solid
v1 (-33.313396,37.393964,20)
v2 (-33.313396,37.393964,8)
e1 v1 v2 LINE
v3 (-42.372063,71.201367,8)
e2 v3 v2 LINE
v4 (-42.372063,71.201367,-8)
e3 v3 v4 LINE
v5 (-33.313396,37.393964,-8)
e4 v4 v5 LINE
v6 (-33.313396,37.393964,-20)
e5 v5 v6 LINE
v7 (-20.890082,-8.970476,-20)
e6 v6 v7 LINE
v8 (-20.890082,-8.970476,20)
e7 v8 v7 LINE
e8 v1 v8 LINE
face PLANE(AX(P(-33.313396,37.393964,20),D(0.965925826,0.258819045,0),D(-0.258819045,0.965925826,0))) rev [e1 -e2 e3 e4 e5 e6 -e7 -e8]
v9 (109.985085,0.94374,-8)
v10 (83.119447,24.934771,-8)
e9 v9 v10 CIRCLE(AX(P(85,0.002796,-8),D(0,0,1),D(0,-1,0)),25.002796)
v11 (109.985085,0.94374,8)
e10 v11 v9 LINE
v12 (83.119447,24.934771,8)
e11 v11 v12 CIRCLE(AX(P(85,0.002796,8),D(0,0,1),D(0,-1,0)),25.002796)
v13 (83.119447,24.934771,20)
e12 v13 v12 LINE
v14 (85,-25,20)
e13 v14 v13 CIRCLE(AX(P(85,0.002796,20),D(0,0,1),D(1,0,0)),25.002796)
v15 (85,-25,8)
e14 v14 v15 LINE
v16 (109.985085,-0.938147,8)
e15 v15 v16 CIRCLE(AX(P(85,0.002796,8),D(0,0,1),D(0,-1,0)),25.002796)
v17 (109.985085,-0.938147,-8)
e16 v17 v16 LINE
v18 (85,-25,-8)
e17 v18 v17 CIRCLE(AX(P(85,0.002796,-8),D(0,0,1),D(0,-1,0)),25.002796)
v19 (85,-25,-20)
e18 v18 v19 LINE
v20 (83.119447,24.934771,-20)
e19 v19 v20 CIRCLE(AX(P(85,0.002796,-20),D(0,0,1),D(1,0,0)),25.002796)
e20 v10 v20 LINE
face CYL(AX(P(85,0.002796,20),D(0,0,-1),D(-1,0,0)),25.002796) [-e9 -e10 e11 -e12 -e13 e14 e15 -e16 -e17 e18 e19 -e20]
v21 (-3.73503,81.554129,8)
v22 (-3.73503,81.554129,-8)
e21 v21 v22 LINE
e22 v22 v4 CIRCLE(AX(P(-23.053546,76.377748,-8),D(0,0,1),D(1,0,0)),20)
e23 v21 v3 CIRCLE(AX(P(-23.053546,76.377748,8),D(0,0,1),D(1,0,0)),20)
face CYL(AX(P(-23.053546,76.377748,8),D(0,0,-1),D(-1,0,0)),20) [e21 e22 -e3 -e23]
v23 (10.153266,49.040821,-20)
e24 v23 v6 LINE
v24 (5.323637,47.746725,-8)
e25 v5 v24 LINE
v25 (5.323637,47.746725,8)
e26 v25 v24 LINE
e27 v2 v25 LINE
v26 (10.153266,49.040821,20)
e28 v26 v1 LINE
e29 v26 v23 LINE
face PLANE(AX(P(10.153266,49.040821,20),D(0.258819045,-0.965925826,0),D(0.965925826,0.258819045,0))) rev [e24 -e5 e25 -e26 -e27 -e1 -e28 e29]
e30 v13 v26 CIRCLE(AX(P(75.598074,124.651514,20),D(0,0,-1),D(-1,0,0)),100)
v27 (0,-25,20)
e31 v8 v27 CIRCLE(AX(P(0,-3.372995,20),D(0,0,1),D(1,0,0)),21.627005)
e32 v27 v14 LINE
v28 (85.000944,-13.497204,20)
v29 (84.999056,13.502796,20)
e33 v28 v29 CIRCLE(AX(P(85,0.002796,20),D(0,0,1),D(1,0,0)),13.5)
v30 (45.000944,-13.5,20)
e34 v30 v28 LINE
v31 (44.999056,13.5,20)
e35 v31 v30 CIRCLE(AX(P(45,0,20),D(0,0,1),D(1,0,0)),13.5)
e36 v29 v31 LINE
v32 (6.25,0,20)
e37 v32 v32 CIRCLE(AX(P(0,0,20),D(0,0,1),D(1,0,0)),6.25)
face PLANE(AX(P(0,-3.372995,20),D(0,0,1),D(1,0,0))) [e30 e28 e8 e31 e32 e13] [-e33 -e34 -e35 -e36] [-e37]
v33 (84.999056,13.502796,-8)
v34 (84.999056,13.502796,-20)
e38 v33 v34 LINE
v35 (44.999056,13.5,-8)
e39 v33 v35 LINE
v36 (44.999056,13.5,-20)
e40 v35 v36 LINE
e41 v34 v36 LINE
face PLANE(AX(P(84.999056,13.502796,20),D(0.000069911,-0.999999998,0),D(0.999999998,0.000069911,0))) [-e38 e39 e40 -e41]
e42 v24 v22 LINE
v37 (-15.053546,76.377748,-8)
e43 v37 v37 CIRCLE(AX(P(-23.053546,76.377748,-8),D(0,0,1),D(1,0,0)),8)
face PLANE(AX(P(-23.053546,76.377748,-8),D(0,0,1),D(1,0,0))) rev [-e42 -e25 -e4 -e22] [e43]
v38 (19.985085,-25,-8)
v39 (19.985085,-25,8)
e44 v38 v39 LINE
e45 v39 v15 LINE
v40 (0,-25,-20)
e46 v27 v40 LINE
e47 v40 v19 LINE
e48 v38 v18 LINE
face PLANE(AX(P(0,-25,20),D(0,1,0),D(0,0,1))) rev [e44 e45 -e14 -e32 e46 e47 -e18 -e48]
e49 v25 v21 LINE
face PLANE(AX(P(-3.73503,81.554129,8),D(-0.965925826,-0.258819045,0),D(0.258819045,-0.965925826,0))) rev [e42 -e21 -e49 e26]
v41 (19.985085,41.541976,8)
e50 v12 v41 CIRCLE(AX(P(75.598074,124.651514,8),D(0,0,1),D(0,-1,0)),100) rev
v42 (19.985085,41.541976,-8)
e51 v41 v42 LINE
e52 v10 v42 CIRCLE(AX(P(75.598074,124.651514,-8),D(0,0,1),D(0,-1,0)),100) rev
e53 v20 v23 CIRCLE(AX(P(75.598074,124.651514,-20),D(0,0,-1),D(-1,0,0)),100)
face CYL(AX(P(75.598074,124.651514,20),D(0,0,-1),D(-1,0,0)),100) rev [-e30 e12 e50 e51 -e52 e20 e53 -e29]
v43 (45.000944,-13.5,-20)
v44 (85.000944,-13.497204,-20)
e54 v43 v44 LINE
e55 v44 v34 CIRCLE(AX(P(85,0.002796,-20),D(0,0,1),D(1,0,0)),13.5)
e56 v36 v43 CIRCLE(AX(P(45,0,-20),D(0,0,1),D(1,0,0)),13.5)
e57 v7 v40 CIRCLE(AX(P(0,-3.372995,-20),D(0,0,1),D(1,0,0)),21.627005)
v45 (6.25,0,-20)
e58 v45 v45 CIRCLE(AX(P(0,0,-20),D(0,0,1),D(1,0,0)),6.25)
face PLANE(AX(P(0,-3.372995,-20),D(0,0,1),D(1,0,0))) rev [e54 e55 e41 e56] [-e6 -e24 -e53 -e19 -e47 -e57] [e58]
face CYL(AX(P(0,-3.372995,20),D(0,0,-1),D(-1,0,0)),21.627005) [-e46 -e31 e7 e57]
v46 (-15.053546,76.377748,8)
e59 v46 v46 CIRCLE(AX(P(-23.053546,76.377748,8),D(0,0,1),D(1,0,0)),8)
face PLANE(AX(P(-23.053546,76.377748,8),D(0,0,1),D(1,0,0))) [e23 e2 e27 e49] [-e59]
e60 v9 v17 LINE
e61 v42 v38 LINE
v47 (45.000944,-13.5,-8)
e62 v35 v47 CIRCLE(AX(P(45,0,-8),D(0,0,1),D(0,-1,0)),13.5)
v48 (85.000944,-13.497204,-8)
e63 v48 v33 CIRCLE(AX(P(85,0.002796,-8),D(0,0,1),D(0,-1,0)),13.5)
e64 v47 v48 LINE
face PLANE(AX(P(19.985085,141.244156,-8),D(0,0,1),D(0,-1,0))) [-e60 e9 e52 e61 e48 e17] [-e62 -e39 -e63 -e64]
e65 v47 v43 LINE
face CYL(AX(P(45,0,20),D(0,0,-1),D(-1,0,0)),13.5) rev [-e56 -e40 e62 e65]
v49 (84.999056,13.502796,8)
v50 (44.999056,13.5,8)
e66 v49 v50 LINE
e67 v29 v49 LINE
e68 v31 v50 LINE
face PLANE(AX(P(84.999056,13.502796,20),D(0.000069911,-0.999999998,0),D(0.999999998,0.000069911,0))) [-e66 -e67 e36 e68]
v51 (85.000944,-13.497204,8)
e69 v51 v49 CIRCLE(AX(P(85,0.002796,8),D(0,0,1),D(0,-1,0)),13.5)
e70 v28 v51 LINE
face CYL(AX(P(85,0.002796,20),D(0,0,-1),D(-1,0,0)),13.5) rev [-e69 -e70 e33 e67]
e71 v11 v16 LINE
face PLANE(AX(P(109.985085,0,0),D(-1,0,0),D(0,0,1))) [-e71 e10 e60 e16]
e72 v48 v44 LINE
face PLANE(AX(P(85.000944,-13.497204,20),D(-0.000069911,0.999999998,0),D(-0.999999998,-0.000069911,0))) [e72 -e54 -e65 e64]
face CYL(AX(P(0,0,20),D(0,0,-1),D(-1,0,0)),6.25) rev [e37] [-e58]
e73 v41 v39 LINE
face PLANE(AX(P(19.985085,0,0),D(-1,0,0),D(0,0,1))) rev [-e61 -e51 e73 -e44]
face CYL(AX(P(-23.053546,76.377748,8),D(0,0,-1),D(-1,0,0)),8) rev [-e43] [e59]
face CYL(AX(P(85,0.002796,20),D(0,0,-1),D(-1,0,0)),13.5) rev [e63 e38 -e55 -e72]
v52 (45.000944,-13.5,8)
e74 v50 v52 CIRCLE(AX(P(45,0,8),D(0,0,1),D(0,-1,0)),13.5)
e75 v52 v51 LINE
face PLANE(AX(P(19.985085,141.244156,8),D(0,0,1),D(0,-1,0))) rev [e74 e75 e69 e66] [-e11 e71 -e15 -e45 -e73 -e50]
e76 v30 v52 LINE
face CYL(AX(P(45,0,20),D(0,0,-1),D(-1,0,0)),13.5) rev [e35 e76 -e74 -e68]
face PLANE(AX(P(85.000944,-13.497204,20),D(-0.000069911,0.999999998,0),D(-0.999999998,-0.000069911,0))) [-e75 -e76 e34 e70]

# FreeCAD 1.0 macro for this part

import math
import FreeCAD as App
import Part
import Sketcher
Q = App.Units.Quantity


def add_polygon(sketch, points):
    """Adds a closed chain of lines whose ends are joined by coincident constraints."""
    first, n = sketch.GeometryCount, len(points)
    for a, b in zip(points, points[1:] + points[:1]):
        sketch.addGeometry(Part.LineSegment(App.Vector(*a, 0), App.Vector(*b, 0)), False)
    for i in range(n):
        sketch.addConstraint(Sketcher.Constraint("Coincident", first + i, 2, first + (i + 1) % n, 1))

doc = App.newDocument("Part")
params = doc.addObject("Spreadsheet::Sheet", "Params")
for row, (alias, value) in enumerate([
    ("sketch1_radius", "100 mm"),
    ("sketch1_diameter", "12.5 mm"),
    ("sketch1_radius2", "13.5 mm"),
    ("sketch1_width", "85 mm"),
    ("sketch1_length", "45 mm"),
    ("pad1_length", "40 mm"),
    ("sketch2_diameter", "16 mm"),
    ("sketch2_radius", "20 mm"),
    ("sketch2_length", "35 mm"),
    ("pad2_length", "16 mm"),
    ("sketch3_height", "16 mm"),
    ("pocket1_length", "90 mm"),
], start=1):
    params.set(f"A{row}", alias)
    params.set(f"B{row}", "=" + value)
    params.setAlias(f"B{row}", alias)

body = doc.addObject("PartDesign::Body", "Body")

# Sketch on XY plane
sketch1 = body.newObject("Sketcher::SketchObject", "Sketch")
sketch1.AttachmentSupport = (doc.getObject("XY_Plane"), [""])
sketch1.MapMode = "FlatFace"
sketch1.addGeometry([
    Part.LineSegment(App.Vector(0, -25, 0), App.Vector(85, -25, 0)),  # 0
    Part.ArcOfCircle(Part.Circle(App.Vector(85, 0.002796, 0), App.Vector(0, 0, 1), 25.002796), math.radians(-90), math.radians(94.313502)),  # 1
    Part.ArcOfCircle(Part.Circle(App.Vector(75.598074, 124.651514, 0), App.Vector(0, 0, 1), 100), math.radians(-130.877814), math.radians(-85.686498)),  # 2
    Part.LineSegment(App.Vector(10.153266, 49.040821, 0), App.Vector(-33.313396, 37.393964, 0)),  # 3
    Part.LineSegment(App.Vector(-33.313396, 37.393964, 0), App.Vector(-20.890082, -8.970476, 0)),  # 4
    Part.ArcOfCircle(Part.Circle(App.Vector(0, -3.372995, 0), App.Vector(0, 0, 1), 21.627005), math.radians(-165), math.radians(-90)),  # 5
    Part.Circle(App.Vector(0, 0, 0), App.Vector(0, 0, 1), 6.25),  # 6
    Part.ArcOfCircle(Part.Circle(App.Vector(85, 0.002796, 0), App.Vector(0, 0, 1), 13.5), math.radians(-89.995994), math.radians(90.004006)),  # 7
    Part.LineSegment(App.Vector(85.000944, -13.497204, 0), App.Vector(45.000944, -13.5, 0)),  # 8
    Part.ArcOfCircle(Part.Circle(App.Vector(45, 0, 0), App.Vector(0, 0, 1), 13.5), math.radians(90.004006), math.radians(270.004006)),  # 9
    Part.LineSegment(App.Vector(44.999056, 13.5, 0), App.Vector(84.999056, 13.502796, 0)),  # 10
], False)
sketch1.addConstraint([
    Sketcher.Constraint("Tangent", 0, 2, 1, 1),
    Sketcher.Constraint("Tangent", 1, 2, 2, 2),
    Sketcher.Constraint("Coincident", 2, 1, 3, 1),
    Sketcher.Constraint("Coincident", 3, 2, 4, 1),
    Sketcher.Constraint("Tangent", 4, 2, 5, 1),
    Sketcher.Constraint("Tangent", 5, 2, 0, 1),
    Sketcher.Constraint("Tangent", 7, 1, 8, 1),
    Sketcher.Constraint("Tangent", 8, 2, 9, 2),
    Sketcher.Constraint("Tangent", 9, 1, 10, 1),
    Sketcher.Constraint("Tangent", 10, 2, 7, 2),
    Sketcher.Constraint("Horizontal", 0),
    Sketcher.Constraint("Coincident", 6, 3, -1, 1),
    Sketcher.Constraint("Coincident", 7, 3, 1, 3),
    Sketcher.Constraint("Equal", 7, 9),
    Sketcher.Constraint("PointOnObject", 5, 3, -2),
    Sketcher.Constraint("PointOnObject", 9, 3, -1),
    Sketcher.Constraint("Perpendicular", 3, 4),
    Sketcher.Constraint("Radius", 2, 100.0),
    Sketcher.Constraint("Diameter", 6, 12.5),
    Sketcher.Constraint("Radius", 7, 13.5),
    Sketcher.Constraint("DistanceX", 0, 1, 0, 2, 85.0),
    Sketcher.Constraint("Angle", 3, Q("-165 deg")),
    Sketcher.Constraint("Distance", 3, 45.0),
    Sketcher.Constraint("Distance", 4, 48.0),
    Sketcher.Constraint("Distance", 8, 40.0),
    Sketcher.Constraint("DistanceY", 0, 2, -1, 1, 25.0),
    Sketcher.Constraint("Radius", 1, 25.002796),
    Sketcher.Constraint("Radius", 5, 21.627005),
])
sketch1.setExpression("Constraints[17]", "Params.sketch1_radius")
sketch1.setExpression("Constraints[18]", "Params.sketch1_diameter")
sketch1.setExpression("Constraints[19]", "Params.sketch1_radius2")
sketch1.setExpression("Constraints[20]", "Params.sketch1_width")
sketch1.setExpression("Constraints[22]", "Params.sketch1_length")
pad1 = body.newObject("PartDesign::Pad", "Pad")
pad1.Profile = sketch1
pad1.setExpression("Length", "Params.pad1_length")
pad1.Midplane = True

# Sketch on XY plane
sketch2 = body.newObject("Sketcher::SketchObject", "Sketch001")
sketch2.AttachmentSupport = (doc.getObject("XY_Plane"), [""])
sketch2.MapMode = "FlatFace"
sketch2.addGeometry([
    Part.LineSegment(App.Vector(-42.372063, 71.201367, 0), App.Vector(-33.313396, 37.393964, 0)),  # 0
    Part.LineSegment(App.Vector(-33.313396, 37.393964, 0), App.Vector(5.323637, 47.746725, 0)),  # 1
    Part.LineSegment(App.Vector(5.323637, 47.746725, 0), App.Vector(-3.73503, 81.554129, 0)),  # 2
    Part.ArcOfCircle(Part.Circle(App.Vector(-23.053546, 76.377748, 0), App.Vector(0, 0, 1), 20), math.radians(15), math.radians(195)),  # 3
    Part.Circle(App.Vector(-23.053546, 76.377748, 0), App.Vector(0, 0, 1), 8),  # 4
], False)
sketch2.addConstraint([
    Sketcher.Constraint("Coincident", 0, 2, 1, 1),
    Sketcher.Constraint("Coincident", 1, 2, 2, 1),
    Sketcher.Constraint("Tangent", 2, 2, 3, 1),
    Sketcher.Constraint("Tangent", 3, 2, 0, 1),
    Sketcher.Constraint("Coincident", 4, 3, 3, 3),
    Sketcher.Constraint("Perpendicular", 0, 1),
    Sketcher.Constraint("Perpendicular", 1, 2),
    Sketcher.Constraint("Diameter", 4, 16.0),
    Sketcher.Constraint("Radius", 3, 20.0),
    Sketcher.Constraint("Angle", 0, Q("-75 deg")),
    Sketcher.Constraint("Distance", 0, 35.0),
    Sketcher.Constraint("DistanceY", -1, 1, 3, 3, 76.377748),
    Sketcher.Constraint("DistanceX", 2, 2, -1, 1, 3.73503),
])
sketch2.setExpression("Constraints[7]", "Params.sketch2_diameter")
sketch2.setExpression("Constraints[8]", "Params.sketch2_radius")
sketch2.setExpression("Constraints[10]", "Params.sketch2_length")
pad2 = body.newObject("PartDesign::Pad", "Pad001")
pad2.Profile = sketch2
pad2.setExpression("Length", "Params.pad2_length")
pad2.Midplane = True

# Sketch on YZ plane
sketch3 = body.newObject("Sketcher::SketchObject", "Sketch002")
sketch3.AttachmentSupport = (doc.getObject("YZ_Plane"), [""])
sketch3.MapMode = "FlatFace"
sketch3.AttachmentOffset = App.Placement(App.Vector(0, 0, 109.985085), App.Rotation())
add_polygon(sketch3, [(141.244156, 8), (-191.244156, 8), (-191.244156, -8), (141.244156, -8)])  # lines 0-3
sketch3.addConstraint([
    Sketcher.Constraint("Horizontal", 0),
    Sketcher.Constraint("Vertical", 1),
    Sketcher.Constraint("Horizontal", 2),
    Sketcher.Constraint("Vertical", 3),
    Sketcher.Constraint("DistanceY", 1, 2, 1, 1, 16.0),
    Sketcher.Constraint("DistanceY", -1, 1, 0, 2, 8.0),
    Sketcher.Constraint("DistanceX", 0, 2, 0, 1, 332.488312),
    Sketcher.Constraint("DistanceX", 0, 2, -1, 1, 191.244156),
])
sketch3.setExpression("Constraints[8]", "Params.sketch3_height")
pocket1 = body.newObject("PartDesign::Pocket", "Pocket")
pocket1.Profile = sketch3
pocket1.setExpression("Length", "Params.pocket1_length")

doc.recompute()
